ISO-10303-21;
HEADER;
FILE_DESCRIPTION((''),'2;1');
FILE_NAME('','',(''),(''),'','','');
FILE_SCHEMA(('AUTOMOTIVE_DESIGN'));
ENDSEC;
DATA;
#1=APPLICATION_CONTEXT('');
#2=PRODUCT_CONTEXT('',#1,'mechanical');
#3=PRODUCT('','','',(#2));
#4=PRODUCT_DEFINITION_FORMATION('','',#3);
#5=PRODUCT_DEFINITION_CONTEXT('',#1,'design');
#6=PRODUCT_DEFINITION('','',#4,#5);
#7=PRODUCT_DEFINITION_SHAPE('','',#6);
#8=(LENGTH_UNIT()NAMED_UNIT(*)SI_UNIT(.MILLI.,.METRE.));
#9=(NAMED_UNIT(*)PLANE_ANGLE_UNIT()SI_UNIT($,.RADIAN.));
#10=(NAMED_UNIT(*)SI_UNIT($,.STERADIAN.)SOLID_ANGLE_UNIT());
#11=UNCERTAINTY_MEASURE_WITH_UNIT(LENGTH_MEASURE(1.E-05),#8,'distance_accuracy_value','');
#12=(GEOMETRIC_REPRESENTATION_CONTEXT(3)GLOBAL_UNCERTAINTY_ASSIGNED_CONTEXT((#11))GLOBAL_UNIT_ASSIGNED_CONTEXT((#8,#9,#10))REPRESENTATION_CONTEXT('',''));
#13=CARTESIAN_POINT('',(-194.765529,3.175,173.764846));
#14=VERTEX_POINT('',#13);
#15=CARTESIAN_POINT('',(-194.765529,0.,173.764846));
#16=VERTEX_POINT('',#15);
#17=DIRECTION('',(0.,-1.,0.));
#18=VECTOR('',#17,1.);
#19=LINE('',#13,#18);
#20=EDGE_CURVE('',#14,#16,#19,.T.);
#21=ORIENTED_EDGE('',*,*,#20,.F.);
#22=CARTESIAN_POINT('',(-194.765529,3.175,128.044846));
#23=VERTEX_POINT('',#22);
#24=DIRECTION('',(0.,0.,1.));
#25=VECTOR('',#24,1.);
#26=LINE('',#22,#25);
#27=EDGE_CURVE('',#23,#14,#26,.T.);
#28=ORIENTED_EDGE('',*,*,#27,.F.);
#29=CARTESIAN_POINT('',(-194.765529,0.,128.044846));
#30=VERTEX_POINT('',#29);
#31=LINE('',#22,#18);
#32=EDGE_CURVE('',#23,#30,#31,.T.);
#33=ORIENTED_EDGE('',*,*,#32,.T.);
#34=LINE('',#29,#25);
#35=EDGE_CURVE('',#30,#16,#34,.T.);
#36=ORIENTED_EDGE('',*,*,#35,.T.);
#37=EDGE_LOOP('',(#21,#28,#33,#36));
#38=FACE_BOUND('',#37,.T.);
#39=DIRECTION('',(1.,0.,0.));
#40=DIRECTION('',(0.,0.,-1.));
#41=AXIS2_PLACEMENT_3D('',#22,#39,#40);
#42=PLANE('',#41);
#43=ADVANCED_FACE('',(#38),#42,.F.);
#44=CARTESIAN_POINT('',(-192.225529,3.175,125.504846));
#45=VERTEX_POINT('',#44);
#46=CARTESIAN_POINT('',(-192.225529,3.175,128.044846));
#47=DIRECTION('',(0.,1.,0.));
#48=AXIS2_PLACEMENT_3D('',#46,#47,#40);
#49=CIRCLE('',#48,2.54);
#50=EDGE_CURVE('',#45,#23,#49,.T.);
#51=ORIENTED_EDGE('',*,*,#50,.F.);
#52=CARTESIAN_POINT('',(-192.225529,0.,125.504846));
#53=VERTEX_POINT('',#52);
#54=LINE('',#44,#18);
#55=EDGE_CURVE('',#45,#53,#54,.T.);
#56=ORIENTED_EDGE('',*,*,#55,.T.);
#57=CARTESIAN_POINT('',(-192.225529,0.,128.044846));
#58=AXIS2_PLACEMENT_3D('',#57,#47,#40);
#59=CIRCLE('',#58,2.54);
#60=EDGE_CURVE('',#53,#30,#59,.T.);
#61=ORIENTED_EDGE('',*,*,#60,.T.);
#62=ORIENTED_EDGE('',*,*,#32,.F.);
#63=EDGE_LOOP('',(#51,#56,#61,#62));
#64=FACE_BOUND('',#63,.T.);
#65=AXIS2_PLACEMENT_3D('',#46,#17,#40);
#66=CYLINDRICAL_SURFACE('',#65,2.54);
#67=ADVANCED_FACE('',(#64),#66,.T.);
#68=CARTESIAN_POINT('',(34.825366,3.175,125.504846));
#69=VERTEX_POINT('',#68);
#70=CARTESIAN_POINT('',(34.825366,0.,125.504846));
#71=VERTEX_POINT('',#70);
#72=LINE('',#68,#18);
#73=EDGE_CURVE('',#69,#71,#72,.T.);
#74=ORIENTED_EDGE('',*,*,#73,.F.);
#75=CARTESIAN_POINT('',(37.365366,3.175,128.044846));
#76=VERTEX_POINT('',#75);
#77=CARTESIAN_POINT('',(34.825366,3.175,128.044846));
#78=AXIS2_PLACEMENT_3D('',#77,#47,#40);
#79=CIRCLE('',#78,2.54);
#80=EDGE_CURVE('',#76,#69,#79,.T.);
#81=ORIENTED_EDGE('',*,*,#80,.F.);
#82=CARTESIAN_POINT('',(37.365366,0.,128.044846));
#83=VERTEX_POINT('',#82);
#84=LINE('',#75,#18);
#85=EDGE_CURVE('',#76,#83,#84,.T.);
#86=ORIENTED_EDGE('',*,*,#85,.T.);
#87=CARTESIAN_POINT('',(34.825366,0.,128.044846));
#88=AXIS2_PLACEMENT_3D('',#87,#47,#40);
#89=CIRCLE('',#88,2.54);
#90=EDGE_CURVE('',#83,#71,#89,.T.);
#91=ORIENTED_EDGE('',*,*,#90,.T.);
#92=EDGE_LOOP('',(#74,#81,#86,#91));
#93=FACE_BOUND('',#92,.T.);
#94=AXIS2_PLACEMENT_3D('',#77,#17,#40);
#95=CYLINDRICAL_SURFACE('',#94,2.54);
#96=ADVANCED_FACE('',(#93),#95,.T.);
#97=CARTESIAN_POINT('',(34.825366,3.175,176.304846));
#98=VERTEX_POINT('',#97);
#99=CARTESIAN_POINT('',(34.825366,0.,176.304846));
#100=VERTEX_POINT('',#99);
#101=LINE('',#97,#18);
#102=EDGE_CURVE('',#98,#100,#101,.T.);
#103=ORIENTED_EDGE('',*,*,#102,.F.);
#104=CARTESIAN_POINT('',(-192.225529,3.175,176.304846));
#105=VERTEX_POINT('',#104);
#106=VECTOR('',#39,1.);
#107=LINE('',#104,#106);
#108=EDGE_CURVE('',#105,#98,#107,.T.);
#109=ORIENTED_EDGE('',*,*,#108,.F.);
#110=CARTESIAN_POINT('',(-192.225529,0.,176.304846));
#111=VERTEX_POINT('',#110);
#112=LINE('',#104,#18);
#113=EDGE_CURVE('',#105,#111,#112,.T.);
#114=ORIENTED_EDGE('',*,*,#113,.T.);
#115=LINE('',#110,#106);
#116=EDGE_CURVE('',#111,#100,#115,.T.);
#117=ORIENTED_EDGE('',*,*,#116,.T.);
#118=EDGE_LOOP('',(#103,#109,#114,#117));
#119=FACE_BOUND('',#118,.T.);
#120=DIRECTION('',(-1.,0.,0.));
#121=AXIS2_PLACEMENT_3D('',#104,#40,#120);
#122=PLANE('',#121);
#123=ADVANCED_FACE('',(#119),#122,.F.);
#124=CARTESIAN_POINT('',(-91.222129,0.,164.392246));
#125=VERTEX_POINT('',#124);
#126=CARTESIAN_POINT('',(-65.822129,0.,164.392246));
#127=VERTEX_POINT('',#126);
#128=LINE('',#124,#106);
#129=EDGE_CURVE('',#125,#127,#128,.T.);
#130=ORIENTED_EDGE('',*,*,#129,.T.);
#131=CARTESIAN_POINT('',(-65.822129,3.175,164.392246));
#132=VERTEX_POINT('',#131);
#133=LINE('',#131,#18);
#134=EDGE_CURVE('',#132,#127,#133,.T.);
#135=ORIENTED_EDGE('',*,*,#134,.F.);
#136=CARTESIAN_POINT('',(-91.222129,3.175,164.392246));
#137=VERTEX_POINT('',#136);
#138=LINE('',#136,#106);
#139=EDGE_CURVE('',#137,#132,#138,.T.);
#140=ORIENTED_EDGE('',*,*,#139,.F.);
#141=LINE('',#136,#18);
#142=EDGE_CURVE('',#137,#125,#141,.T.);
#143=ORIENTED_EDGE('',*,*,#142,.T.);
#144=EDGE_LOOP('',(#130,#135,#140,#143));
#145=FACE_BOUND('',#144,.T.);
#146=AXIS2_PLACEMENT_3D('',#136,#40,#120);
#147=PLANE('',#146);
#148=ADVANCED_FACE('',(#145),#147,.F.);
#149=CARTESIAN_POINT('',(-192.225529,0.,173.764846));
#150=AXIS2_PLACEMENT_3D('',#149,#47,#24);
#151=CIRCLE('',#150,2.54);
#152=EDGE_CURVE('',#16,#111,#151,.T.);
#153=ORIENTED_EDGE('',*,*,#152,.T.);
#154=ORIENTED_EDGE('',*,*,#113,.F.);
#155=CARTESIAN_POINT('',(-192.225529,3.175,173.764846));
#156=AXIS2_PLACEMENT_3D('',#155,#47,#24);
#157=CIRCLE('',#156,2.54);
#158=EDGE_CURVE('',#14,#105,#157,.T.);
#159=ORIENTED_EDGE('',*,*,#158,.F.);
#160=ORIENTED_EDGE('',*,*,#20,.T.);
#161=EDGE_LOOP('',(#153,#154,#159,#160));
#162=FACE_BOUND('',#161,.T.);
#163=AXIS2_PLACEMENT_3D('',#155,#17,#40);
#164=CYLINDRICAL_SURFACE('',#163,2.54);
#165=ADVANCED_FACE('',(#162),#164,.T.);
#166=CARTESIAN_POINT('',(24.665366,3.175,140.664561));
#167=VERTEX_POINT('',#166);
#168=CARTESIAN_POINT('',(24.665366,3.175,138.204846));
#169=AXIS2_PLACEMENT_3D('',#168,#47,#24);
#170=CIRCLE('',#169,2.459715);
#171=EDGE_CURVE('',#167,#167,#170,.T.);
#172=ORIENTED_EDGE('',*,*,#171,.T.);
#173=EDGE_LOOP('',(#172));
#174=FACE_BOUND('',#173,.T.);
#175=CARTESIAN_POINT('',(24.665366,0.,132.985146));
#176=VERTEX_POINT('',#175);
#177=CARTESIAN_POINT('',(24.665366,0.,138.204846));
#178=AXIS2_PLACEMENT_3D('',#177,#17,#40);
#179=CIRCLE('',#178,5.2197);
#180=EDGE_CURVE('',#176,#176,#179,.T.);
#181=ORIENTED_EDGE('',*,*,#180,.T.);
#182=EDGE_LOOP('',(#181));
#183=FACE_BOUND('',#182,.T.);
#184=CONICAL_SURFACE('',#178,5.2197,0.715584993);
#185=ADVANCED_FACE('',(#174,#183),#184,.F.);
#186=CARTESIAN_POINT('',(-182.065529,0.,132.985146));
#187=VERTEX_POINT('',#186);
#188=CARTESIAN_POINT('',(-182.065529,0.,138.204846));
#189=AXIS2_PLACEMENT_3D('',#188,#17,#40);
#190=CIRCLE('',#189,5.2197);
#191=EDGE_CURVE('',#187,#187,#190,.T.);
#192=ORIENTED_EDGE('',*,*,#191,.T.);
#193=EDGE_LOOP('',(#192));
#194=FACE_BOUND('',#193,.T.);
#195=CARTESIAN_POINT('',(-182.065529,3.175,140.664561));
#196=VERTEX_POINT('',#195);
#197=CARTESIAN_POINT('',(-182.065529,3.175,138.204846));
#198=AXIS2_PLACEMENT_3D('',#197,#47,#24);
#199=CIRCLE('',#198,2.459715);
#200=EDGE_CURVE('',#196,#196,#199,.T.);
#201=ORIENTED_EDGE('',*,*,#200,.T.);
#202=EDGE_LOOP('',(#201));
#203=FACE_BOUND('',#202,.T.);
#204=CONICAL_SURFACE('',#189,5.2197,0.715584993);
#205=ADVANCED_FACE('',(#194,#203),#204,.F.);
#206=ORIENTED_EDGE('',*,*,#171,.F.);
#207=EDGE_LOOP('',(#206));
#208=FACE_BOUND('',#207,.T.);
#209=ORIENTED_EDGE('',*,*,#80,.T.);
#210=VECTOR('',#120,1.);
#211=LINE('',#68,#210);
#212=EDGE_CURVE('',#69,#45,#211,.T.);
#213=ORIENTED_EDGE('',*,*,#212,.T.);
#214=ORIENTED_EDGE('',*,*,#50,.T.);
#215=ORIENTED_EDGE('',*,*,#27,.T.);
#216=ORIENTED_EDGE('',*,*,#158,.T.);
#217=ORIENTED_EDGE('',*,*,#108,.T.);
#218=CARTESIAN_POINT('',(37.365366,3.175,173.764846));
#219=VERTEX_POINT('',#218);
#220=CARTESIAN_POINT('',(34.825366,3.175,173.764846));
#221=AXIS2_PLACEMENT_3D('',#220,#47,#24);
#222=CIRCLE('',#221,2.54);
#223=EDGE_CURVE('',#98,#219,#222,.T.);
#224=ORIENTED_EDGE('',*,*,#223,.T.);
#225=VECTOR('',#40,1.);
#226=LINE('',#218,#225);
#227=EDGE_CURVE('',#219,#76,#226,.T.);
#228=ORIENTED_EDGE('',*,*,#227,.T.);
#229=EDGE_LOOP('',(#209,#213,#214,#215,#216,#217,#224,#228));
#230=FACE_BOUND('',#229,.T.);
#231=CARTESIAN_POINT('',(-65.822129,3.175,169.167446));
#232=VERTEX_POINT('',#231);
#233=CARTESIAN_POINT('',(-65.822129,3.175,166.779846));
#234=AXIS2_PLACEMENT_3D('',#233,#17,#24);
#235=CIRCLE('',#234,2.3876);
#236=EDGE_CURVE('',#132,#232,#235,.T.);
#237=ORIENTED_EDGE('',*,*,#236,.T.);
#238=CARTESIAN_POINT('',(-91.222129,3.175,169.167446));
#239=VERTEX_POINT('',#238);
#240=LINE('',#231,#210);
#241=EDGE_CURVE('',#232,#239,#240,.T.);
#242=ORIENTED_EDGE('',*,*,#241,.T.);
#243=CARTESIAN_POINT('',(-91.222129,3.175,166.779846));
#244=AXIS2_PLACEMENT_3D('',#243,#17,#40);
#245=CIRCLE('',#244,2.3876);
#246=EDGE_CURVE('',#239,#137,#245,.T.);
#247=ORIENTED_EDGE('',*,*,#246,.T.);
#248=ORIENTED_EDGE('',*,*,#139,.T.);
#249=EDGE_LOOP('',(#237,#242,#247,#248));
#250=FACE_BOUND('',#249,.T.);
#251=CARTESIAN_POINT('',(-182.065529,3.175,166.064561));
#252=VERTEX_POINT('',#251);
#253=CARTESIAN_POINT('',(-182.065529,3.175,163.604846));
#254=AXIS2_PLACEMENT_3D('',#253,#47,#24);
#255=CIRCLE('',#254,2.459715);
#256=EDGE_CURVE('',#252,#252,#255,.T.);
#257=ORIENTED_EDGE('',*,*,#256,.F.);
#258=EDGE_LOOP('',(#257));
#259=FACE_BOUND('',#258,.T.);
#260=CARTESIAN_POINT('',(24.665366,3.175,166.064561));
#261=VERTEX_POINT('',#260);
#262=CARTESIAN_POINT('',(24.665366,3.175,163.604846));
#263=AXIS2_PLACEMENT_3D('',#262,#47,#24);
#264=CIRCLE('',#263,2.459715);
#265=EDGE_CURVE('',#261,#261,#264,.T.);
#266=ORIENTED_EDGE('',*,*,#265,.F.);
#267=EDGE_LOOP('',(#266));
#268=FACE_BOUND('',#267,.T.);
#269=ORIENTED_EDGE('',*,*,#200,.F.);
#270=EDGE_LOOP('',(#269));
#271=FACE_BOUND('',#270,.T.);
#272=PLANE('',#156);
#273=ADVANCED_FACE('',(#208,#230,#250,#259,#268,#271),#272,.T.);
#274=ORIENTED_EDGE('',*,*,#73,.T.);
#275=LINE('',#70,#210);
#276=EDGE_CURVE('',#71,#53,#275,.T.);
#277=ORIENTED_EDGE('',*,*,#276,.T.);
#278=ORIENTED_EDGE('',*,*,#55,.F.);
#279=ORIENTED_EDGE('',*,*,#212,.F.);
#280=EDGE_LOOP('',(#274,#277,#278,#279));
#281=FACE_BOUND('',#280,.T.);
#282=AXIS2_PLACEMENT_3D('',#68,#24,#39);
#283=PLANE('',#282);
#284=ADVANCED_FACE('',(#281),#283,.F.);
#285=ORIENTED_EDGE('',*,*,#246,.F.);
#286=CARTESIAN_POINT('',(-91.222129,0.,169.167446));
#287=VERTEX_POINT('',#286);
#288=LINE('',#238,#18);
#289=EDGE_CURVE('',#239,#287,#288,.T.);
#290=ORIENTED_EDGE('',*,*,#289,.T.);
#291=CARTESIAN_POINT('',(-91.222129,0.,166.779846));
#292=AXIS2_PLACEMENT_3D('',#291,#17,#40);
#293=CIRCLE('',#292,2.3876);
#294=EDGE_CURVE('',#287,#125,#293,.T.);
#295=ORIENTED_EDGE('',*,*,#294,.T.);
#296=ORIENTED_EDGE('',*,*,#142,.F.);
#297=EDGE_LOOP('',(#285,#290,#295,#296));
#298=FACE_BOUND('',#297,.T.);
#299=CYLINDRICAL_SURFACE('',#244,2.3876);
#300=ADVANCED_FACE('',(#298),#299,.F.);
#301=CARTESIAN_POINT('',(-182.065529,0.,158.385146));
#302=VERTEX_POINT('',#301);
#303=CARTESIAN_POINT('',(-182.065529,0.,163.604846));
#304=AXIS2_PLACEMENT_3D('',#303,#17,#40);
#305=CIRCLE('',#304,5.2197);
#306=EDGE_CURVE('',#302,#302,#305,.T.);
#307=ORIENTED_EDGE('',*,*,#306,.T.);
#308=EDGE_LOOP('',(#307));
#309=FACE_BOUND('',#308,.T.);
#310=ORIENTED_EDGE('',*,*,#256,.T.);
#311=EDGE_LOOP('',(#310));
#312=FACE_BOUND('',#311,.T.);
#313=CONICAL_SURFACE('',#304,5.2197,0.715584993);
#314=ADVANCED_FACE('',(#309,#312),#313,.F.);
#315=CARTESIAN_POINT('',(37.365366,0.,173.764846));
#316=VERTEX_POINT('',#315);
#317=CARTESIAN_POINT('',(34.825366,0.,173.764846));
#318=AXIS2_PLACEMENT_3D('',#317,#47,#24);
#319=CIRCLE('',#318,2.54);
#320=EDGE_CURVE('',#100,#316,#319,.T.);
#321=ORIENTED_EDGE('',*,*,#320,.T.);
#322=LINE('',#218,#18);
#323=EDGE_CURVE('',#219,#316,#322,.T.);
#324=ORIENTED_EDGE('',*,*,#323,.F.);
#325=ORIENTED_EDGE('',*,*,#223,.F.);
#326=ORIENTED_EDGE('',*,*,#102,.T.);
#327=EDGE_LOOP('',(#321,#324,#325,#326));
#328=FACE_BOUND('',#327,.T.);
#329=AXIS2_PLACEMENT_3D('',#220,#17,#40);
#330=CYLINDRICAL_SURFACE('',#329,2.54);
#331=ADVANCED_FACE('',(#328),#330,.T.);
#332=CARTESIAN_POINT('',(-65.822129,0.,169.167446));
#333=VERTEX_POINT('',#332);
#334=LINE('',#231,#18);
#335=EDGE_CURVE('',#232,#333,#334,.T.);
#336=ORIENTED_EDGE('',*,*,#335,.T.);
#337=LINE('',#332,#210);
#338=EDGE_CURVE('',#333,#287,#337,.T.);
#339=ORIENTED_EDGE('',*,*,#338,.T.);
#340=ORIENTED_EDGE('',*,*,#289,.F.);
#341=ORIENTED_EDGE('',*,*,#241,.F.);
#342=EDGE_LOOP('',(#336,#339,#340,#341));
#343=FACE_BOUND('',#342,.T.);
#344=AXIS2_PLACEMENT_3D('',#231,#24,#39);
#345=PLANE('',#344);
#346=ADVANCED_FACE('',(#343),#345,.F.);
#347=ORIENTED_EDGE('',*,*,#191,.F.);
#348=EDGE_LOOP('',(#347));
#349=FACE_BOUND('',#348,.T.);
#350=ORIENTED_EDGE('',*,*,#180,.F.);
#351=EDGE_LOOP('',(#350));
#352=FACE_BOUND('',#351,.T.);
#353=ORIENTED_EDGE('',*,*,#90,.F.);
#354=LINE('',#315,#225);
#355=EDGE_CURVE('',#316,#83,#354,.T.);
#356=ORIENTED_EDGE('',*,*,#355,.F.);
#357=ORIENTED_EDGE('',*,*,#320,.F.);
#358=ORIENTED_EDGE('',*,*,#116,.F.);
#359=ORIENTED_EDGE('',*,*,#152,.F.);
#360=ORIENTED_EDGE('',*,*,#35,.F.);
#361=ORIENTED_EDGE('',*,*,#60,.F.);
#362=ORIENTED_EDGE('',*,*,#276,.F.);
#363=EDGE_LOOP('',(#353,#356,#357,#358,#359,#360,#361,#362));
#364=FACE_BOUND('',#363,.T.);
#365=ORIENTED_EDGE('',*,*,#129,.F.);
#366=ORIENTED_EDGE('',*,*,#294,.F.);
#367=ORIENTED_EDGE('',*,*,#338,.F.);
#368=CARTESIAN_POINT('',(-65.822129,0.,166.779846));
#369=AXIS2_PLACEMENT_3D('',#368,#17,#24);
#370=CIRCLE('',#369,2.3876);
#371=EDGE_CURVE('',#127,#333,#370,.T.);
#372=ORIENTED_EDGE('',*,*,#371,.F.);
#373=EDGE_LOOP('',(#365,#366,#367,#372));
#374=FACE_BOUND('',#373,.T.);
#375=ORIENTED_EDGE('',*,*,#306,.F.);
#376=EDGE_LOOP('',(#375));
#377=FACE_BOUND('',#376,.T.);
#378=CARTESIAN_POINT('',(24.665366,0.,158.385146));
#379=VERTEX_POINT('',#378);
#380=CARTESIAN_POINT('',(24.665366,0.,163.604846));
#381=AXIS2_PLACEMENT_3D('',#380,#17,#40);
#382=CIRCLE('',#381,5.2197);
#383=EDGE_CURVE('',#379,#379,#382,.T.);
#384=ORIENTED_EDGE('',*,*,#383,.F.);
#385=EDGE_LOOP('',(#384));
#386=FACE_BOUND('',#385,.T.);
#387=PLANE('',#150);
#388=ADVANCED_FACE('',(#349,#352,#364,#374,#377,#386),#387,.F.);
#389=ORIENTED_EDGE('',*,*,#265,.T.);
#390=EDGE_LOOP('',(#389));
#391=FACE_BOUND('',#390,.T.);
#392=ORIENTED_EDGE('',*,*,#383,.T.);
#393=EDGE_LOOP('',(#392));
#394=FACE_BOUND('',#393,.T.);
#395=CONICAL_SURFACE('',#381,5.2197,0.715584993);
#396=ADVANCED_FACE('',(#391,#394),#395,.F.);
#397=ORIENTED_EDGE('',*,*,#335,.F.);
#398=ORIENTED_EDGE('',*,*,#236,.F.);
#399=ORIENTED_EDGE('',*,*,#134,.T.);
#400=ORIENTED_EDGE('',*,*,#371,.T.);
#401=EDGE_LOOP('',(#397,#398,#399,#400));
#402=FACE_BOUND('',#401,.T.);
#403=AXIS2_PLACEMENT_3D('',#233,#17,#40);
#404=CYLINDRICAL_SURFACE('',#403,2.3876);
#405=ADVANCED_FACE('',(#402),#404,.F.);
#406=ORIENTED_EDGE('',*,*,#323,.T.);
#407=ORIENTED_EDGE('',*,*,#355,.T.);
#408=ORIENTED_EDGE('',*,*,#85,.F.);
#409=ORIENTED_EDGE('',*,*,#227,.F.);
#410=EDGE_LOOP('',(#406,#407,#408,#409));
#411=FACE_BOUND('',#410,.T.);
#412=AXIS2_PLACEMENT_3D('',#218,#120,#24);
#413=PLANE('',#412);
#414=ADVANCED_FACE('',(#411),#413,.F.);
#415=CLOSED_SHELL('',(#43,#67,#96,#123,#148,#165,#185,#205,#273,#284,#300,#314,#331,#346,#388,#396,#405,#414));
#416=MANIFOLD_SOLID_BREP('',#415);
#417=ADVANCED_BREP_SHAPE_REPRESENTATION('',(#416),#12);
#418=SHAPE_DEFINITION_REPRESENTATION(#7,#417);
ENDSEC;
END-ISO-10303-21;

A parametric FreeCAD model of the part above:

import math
import FreeCAD as App
import Part
import Sketcher

V = App.Vector
Q = App.Units.Quantity

doc = App.newDocument("Part")
body = doc.addObject("PartDesign::Body", "Body")

# Sketch on XZ plane
sketch1 = doc.addObject("Sketcher::SketchObject", "Sketch")
body.addObject(sketch1)
sketch1.AttachmentSupport = (doc.XZ_Plane, [""])
sketch1.MapMode = "FlatFace"
sketch1.addGeometry([
    Part.LineSegment(V(34.8, 125.5, 0), V(-192.2, 125.5, 0)),  # 0
    Part.ArcOfCircle(Part.Circle(V(-192.2, 128, 0), V(0, 0, 1), 2.5), math.radians(-180), math.radians(-90)),  # 1
    Part.LineSegment(V(-194.8, 128, 0), V(-194.8, 173.8, 0)),  # 2
    Part.ArcOfCircle(Part.Circle(V(-192.2, 173.8, 0), V(0, 0, 1), 2.5), math.radians(90), math.radians(180)),  # 3
    Part.LineSegment(V(-192.2, 176.3, 0), V(34.8, 176.3, 0)),  # 4
    Part.ArcOfCircle(Part.Circle(V(34.8, 173.8, 0), V(0, 0, 1), 2.5), math.radians(0), math.radians(90)),  # 5
    Part.LineSegment(V(37.4, 173.8, 0), V(37.4, 128, 0)),  # 6
    Part.ArcOfCircle(Part.Circle(V(34.8, 128, 0), V(0, 0, 1), 2.5), math.radians(-90), math.radians(0)),  # 7
], False)
sketch1.addConstraint([
    Sketcher.Constraint("Tangent", 0, 2, 1, 2),
    Sketcher.Constraint("Tangent", 1, 1, 2, 1),
    Sketcher.Constraint("Tangent", 2, 2, 3, 2),
    Sketcher.Constraint("Tangent", 3, 1, 4, 1),
    Sketcher.Constraint("Tangent", 4, 2, 5, 2),
    Sketcher.Constraint("Tangent", 5, 1, 6, 1),
    Sketcher.Constraint("Tangent", 6, 2, 7, 2),
    Sketcher.Constraint("Tangent", 7, 1, 0, 1),
    Sketcher.Constraint("Horizontal", 0),
    Sketcher.Constraint("Vertical", 2),
    Sketcher.Constraint("Horizontal", 4),
    Sketcher.Constraint("Vertical", 6),
    Sketcher.Constraint("Equal", 1, 3),
    Sketcher.Constraint("Equal", 3, 5),
    Sketcher.Constraint("Equal", 5, 7),
    Sketcher.Constraint("Radius", 1, Q("0.1 in")),
    Sketcher.Constraint("DistanceY", 2, 1, 2, 2, Q("1.8 in")),
    Sketcher.Constraint("DistanceX", 0, 2, 0, 1, 227.050895),
    Sketcher.Constraint("DistanceX", 1, 3, -1, 1, 192.225529),
    Sketcher.Constraint("DistanceY", -1, 1, 1, 3, 128.044846),
])
pad1 = doc.addObject("PartDesign::Pad", "Pad")
body.addObject(pad1)
pad1.Profile = sketch1
pad1.Length = Q("0.125 in")
pad1.Reversed = True

# Sketch on YZ plane
sketch2 = doc.addObject("Sketcher::SketchObject", "Sketch001")
body.addObject(sketch2)
sketch2.AttachmentSupport = (doc.YZ_Plane, [""])
sketch2.MapMode = "FlatFace"
sketch2.AttachmentOffset = App.Placement(V(0, 0, 24.665366), App.Rotation())
sketch2.addGeometry([
    Part.LineSegment(V(3.175, 163.6048, 0), V(0, 163.6048, 0)),  # 0
    Part.LineSegment(V(0, 163.6048, 0), V(0, 158.3851, 0)),  # 1
    Part.LineSegment(V(0, 158.3851, 0), V(3.1776, 161.1474, 0)),  # 2
    Part.LineSegment(V(3.1776, 161.1474, 0), V(3.175, 161.1474, 0)),  # 3
    Part.LineSegment(V(3.175, 161.1474, 0), V(3.175, 163.6048, 0)),  # 4
], False)
sketch2.addGeometry(Part.LineSegment(V(0, 163.6048, 0), V(3.1776, 163.6048, 0)), True)  # axis
sketch2.addConstraint([
    Sketcher.Constraint("Coincident", 0, 2, 1, 1),
    Sketcher.Constraint("Coincident", 1, 2, 2, 1),
    Sketcher.Constraint("Coincident", 2, 2, 3, 1),
    Sketcher.Constraint("Coincident", 3, 2, 4, 1),
    Sketcher.Constraint("Coincident", 4, 2, 0, 1),
    Sketcher.Constraint("Horizontal", 0),
    Sketcher.Constraint("Vertical", 1),
    Sketcher.Constraint("Horizontal", 3),
    Sketcher.Constraint("Vertical", 4),
    Sketcher.Constraint("Horizontal", 5),
    Sketcher.Constraint("Coincident", 5, 1, 0, 2),
    Sketcher.Constraint("PointOnObject", 0, 2, -2),
    Sketcher.Constraint("Vertical", 2, 2, 5, 2),
    Sketcher.Constraint("Angle", 2, Q("41 deg")),
    Sketcher.Constraint("DistanceX", 0, 2, 0, 1, Q("0.125 in")),
    Sketcher.Constraint("DistanceY", 1, 2, 1, 1, Q("0.2055 in")),
    Sketcher.Constraint("DistanceY", 4, 1, 4, 2, 2.45745),
    Sketcher.Constraint("DistanceY", -1, 1, 0, 2, 163.604846),
])
groove = doc.addObject("PartDesign::Groove", "Groove")
body.addObject(groove)
groove.Profile = sketch2
groove.ReferenceAxis = (sketch2, ["Axis0"])
groove.Angle = 360
doc.recompute()

linearpattern = doc.addObject("PartDesign::LinearPattern", "LinearPattern")
body.addObject(linearpattern)
linearpattern.Originals = [groove]
linearpattern.Direction = (doc.Z_Axis, [""])
linearpattern.Mode = "offset"
linearpattern.Offset = Q("1 in")
linearpattern.Occurrences = 2
linearpattern.Reversed = True
body.Tip = linearpattern
doc.recompute()

datumline = doc.addObject("PartDesign::Line", "DatumLine")
body.addObject(datumline)
datumline.Placement = App.Placement(V(0, 0, 0), App.Rotation(V(0, 0, 1), V(-0.992536486, 0, -0.121948036)))
linearpattern2 = doc.addObject("PartDesign::LinearPattern", "LinearPattern001")
body.addObject(linearpattern2)
linearpattern2.Originals = [groove]
linearpattern2.Direction = (datumline, [""])
linearpattern2.Mode = "offset"
linearpattern2.Offset = 208.285436
linearpattern2.Occurrences = 2
body.Tip = linearpattern2
doc.recompute()

linearpattern3 = doc.addObject("PartDesign::LinearPattern", "LinearPattern002")
body.addObject(linearpattern3)
linearpattern3.Originals = [groove]
linearpattern3.Direction = (doc.X_Axis, [""])
linearpattern3.Mode = "offset"
linearpattern3.Offset = 206.730895
linearpattern3.Occurrences = 2
linearpattern3.Reversed = True
body.Tip = linearpattern3

# Sketch on XZ plane
sketch3 = doc.addObject("Sketcher::SketchObject", "Sketch002")
body.addObject(sketch3)
sketch3.AttachmentSupport = (doc.XZ_Plane, [""])
sketch3.MapMode = "FlatFace"
sketch3.addGeometry([
    Part.LineSegment(V(-65.8, 169.2, 0), V(-91.2, 169.2, 0)),
    Part.ArcOfCircle(Part.Circle(V(-91.2, 166.8, 0), V(0, 0, 1), 2.4), math.radians(90), math.radians(270)),
    Part.LineSegment(V(-91.2, 164.4, 0), V(-65.8, 164.4, 0)),
    Part.ArcOfCircle(Part.Circle(V(-65.8, 166.8, 0), V(0, 0, 1), 2.4), math.radians(-90), math.radians(90)),
], False)
sketch3.addConstraint([
    Sketcher.Constraint("Tangent", 0, 2, 1, 1),
    Sketcher.Constraint("Tangent", 1, 2, 2, 1),
    Sketcher.Constraint("Tangent", 2, 2, 3, 1),
    Sketcher.Constraint("Tangent", 3, 2, 0, 1),
    Sketcher.Constraint("Horizontal", 0),
    Sketcher.Constraint("Horizontal", 2),
    Sketcher.Constraint("DistanceX", 0, 2, 0, 1, Q("1 in")),
    Sketcher.Constraint("Radius", 1, Q("0.094 in")),
    Sketcher.Constraint("DistanceX", 1, 3, -1, 1, 91.222129),
    Sketcher.Constraint("DistanceY", -1, 1, 1, 3, 166.779846),
])
pocket1 = doc.addObject("PartDesign::Pocket", "Pocket")
body.addObject(pocket1)
pocket1.Profile = sketch3
pocket1.Length = Q("0.125 in")

doc.recompute()
